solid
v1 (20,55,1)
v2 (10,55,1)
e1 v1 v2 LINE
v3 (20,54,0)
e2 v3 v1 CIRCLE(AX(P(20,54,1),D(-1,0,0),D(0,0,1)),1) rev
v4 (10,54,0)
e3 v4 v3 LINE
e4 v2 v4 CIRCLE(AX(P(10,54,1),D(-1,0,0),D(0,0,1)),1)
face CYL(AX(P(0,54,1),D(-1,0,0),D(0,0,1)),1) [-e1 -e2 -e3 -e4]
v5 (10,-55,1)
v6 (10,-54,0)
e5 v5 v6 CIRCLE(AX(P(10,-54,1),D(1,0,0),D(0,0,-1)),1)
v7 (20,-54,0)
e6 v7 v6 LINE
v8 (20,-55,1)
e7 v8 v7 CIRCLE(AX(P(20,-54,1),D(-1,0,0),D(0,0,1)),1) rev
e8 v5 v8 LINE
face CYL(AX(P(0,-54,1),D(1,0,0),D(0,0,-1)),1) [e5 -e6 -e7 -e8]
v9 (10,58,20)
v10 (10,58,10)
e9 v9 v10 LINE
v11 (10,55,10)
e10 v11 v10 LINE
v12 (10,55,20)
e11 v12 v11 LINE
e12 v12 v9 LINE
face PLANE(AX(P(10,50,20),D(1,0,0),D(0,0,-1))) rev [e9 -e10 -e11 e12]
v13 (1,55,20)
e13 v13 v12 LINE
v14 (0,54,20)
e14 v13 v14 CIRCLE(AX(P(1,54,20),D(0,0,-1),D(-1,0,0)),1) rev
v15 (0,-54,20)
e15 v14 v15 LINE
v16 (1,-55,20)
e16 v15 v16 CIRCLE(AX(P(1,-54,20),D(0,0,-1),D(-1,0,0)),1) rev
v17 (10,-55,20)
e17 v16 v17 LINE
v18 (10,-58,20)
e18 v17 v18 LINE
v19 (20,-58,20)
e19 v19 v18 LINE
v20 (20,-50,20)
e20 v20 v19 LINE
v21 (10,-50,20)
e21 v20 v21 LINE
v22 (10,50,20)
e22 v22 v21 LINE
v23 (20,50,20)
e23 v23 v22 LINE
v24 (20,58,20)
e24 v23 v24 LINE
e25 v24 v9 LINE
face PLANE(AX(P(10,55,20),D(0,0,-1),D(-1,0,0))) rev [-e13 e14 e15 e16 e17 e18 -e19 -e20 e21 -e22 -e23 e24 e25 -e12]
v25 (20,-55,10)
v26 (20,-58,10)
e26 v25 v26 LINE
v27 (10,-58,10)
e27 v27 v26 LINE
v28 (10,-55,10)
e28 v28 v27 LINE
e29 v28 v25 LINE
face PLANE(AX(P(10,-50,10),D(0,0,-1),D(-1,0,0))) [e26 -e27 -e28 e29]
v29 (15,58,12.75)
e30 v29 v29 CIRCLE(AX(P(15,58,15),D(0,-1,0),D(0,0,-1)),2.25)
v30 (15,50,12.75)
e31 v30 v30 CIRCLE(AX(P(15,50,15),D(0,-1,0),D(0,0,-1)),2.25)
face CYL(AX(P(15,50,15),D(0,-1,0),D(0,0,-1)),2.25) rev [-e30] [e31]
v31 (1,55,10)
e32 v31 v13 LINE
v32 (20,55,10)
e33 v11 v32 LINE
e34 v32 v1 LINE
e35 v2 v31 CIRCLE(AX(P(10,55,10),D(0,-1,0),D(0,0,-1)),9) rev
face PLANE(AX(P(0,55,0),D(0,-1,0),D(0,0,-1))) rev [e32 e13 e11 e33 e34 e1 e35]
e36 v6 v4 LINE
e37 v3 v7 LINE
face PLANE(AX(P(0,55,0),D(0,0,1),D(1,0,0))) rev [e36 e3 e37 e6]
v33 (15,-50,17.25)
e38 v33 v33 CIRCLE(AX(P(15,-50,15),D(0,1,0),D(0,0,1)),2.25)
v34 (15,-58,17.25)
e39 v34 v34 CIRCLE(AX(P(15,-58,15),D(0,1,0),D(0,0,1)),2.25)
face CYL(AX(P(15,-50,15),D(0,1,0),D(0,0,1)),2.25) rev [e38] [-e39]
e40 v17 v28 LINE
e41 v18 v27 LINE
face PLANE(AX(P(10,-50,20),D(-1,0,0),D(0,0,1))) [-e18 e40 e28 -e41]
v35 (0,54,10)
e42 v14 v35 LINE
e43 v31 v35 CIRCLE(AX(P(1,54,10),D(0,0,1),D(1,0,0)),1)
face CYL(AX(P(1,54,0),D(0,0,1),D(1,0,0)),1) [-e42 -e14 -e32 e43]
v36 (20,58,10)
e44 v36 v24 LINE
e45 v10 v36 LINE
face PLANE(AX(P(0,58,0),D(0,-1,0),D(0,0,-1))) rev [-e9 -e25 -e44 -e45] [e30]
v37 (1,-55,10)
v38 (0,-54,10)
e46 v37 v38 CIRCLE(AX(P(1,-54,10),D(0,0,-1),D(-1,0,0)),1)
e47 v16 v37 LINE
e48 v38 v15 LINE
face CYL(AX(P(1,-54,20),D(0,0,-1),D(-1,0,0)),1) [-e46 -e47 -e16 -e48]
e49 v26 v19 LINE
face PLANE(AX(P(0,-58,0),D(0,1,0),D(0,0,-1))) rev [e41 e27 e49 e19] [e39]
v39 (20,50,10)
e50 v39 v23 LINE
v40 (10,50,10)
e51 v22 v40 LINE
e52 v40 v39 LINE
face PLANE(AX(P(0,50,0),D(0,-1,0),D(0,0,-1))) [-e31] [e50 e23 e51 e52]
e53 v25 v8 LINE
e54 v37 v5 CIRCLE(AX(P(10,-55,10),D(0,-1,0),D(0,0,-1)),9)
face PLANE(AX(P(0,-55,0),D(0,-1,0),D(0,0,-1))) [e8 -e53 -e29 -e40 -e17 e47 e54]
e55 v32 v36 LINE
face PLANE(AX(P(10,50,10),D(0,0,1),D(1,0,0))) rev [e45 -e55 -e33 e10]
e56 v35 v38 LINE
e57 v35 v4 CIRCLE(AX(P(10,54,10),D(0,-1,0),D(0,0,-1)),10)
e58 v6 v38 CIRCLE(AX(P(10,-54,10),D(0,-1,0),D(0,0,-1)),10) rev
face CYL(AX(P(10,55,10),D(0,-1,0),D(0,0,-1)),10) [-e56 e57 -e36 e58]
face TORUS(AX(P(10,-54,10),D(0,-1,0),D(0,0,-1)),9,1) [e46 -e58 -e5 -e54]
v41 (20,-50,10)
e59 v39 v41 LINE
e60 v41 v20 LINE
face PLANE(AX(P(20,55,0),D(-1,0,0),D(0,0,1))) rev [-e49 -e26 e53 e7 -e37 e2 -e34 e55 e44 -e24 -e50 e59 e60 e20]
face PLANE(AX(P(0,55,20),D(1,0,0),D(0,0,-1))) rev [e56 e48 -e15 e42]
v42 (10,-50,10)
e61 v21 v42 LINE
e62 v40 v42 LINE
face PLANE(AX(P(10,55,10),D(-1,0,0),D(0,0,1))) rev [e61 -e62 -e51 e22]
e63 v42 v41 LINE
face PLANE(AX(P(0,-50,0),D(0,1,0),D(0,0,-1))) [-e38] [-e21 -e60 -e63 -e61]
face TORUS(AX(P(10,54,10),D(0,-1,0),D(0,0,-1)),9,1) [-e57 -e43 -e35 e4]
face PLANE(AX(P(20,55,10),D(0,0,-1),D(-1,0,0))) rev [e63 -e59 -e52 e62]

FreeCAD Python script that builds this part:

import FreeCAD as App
import Part
import Sketcher

V = App.Vector
Q = App.Units.Quantity


def edges_at(feature, points):
    """Names of the edges that pass closest to the given points."""
    edges = feature.Shape.Edges
    near = lambda p: min(range(len(edges)), key=lambda i: edges[i].distToShape(Part.Vertex(*p))[0])
    return sorted({f"Edge{near(p) + 1}" for p in points})


def add_polygon(sketch, points):
    """Adds a closed chain of lines whose ends are joined by coincident constraints."""
    first, n = sketch.GeometryCount, len(points)
    for a, b in zip(points, points[1:] + points[:1]):
        sketch.addGeometry(Part.LineSegment(App.Vector(*a, 0), App.Vector(*b, 0)), False)
    for i in range(n):
        sketch.addConstraint(Sketcher.Constraint("Coincident", first + i, 2, first + (i + 1) % n, 1))

doc = App.newDocument("Part")
body = doc.addObject("PartDesign::Body", "Body")

sketch1 = body.newObject("Sketcher::SketchObject", "Sketch")
sketch1.AttachmentSupport = (doc.getObject("XZ_Plane"), [""])
sketch1.MapMode = "FlatFace"
add_polygon(sketch1, [(20, 0), (0, 0), (0, 20), (10, 20), (10, 10), (20, 10)])
sketch1.addConstraint([
    Sketcher.Constraint("Horizontal", 0),
    Sketcher.Constraint("Vertical", 1),
    Sketcher.Constraint("Horizontal", 2),
    Sketcher.Constraint("Vertical", 3),
    Sketcher.Constraint("Horizontal", 4),
    Sketcher.Constraint("Vertical", 5),
    Sketcher.Constraint("Coincident", 0, 2, -1, 1),
    Sketcher.Constraint("Equal", 2, 4),
    Sketcher.Constraint("Equal", 0, 1),
    Sketcher.Constraint("Equal", 4, 3),
    Sketcher.Constraint("DistanceX", 0, 2, 0, 1, Q("20 mm")),
])
pad1 = body.newObject("PartDesign::Pad", "Pad")
pad1.Profile = sketch1
pad1.Length = 110
pad1.Midplane = True

sketch2 = body.newObject("Sketcher::SketchObject", "Sketch001")
sketch2.AttachmentSupport = (doc.getObject("XZ_Plane"), [""])
sketch2.MapMode = "FlatFace"
sketch2.AttachmentOffset = App.Placement(V(0, 0, -50), App.Rotation())
add_polygon(sketch2, [(10, 10), (10, 20), (20, 20), (20, 10)])
sketch2.addConstraint([
    Sketcher.Constraint("Vertical", 0),
    Sketcher.Constraint("Horizontal", 1),
    Sketcher.Constraint("Vertical", 2),
    Sketcher.Constraint("Horizontal", 3),
    Sketcher.Constraint("Equal", 3, 0),
    Sketcher.Constraint("DistanceX", 1, 1, 1, 2, Q("10 mm")),
    Sketcher.Constraint("DistanceX", -1, 1, 0, 2, Q("10 mm")),
    Sketcher.Constraint("DistanceY", -1, 1, 0, 2, Q("20 mm")),
])
pad2 = body.newObject("PartDesign::Pad", "Pad001")
pad2.Profile = sketch2
pad2.Length = 8
pad2.Reversed = True

sketch3 = body.newObject("Sketcher::SketchObject", "Sketch002")
sketch3.AttachmentSupport = (doc.getObject("XZ_Plane"), [""])
sketch3.MapMode = "FlatFace"
sketch3.AttachmentOffset = App.Placement(V(0, 0, -50), App.Rotation())
sketch3.addGeometry(Part.Circle(V(15, 15, 0), V(0, 0, 1), 2.25), False)
sketch3.addConstraint([
    Sketcher.Constraint("Diameter", 0, Q("4.5 mm")),
    Sketcher.Constraint("DistanceX", -1, 1, 0, 3, Q("15 mm")),
    Sketcher.Constraint("DistanceY", -1, 1, 0, 3, Q("15 mm")),
])
doc.recompute()
hole = body.newObject("PartDesign::Hole", "Hole")
hole.Profile = sketch3
hole.ThreadType = "None"
hole.Diameter = 4.5
hole.DepthType = "ThroughAll"
doc.recompute()

mirrored = body.newObject("PartDesign::Mirrored", "Mirrored")
mirrored.Originals = [pad2, hole]
mirrored.MirrorPlane = (doc.getObject("XZ_Plane"), [""])
body.Tip = mirrored
doc.recompute()

fillet = body.newObject("PartDesign::Fillet", "Fillet")
fillet.Base = (mirrored, edges_at(mirrored, [(0, 0, 0)]))
fillet.Radius = 10
doc.recompute()

fillet2 = body.newObject("PartDesign::Fillet", "Fillet001")
fillet2.Base = (fillet, edges_at(fillet, [
    (15, 55, 0),
    (0, -55, 15),
    (0, 55, 15),
    (2.929, -55, 2.929),
    (2.929, 55, 2.929),
    (15, -55, 0),
]))
fillet2.Radius = 1

doc.recompute()
